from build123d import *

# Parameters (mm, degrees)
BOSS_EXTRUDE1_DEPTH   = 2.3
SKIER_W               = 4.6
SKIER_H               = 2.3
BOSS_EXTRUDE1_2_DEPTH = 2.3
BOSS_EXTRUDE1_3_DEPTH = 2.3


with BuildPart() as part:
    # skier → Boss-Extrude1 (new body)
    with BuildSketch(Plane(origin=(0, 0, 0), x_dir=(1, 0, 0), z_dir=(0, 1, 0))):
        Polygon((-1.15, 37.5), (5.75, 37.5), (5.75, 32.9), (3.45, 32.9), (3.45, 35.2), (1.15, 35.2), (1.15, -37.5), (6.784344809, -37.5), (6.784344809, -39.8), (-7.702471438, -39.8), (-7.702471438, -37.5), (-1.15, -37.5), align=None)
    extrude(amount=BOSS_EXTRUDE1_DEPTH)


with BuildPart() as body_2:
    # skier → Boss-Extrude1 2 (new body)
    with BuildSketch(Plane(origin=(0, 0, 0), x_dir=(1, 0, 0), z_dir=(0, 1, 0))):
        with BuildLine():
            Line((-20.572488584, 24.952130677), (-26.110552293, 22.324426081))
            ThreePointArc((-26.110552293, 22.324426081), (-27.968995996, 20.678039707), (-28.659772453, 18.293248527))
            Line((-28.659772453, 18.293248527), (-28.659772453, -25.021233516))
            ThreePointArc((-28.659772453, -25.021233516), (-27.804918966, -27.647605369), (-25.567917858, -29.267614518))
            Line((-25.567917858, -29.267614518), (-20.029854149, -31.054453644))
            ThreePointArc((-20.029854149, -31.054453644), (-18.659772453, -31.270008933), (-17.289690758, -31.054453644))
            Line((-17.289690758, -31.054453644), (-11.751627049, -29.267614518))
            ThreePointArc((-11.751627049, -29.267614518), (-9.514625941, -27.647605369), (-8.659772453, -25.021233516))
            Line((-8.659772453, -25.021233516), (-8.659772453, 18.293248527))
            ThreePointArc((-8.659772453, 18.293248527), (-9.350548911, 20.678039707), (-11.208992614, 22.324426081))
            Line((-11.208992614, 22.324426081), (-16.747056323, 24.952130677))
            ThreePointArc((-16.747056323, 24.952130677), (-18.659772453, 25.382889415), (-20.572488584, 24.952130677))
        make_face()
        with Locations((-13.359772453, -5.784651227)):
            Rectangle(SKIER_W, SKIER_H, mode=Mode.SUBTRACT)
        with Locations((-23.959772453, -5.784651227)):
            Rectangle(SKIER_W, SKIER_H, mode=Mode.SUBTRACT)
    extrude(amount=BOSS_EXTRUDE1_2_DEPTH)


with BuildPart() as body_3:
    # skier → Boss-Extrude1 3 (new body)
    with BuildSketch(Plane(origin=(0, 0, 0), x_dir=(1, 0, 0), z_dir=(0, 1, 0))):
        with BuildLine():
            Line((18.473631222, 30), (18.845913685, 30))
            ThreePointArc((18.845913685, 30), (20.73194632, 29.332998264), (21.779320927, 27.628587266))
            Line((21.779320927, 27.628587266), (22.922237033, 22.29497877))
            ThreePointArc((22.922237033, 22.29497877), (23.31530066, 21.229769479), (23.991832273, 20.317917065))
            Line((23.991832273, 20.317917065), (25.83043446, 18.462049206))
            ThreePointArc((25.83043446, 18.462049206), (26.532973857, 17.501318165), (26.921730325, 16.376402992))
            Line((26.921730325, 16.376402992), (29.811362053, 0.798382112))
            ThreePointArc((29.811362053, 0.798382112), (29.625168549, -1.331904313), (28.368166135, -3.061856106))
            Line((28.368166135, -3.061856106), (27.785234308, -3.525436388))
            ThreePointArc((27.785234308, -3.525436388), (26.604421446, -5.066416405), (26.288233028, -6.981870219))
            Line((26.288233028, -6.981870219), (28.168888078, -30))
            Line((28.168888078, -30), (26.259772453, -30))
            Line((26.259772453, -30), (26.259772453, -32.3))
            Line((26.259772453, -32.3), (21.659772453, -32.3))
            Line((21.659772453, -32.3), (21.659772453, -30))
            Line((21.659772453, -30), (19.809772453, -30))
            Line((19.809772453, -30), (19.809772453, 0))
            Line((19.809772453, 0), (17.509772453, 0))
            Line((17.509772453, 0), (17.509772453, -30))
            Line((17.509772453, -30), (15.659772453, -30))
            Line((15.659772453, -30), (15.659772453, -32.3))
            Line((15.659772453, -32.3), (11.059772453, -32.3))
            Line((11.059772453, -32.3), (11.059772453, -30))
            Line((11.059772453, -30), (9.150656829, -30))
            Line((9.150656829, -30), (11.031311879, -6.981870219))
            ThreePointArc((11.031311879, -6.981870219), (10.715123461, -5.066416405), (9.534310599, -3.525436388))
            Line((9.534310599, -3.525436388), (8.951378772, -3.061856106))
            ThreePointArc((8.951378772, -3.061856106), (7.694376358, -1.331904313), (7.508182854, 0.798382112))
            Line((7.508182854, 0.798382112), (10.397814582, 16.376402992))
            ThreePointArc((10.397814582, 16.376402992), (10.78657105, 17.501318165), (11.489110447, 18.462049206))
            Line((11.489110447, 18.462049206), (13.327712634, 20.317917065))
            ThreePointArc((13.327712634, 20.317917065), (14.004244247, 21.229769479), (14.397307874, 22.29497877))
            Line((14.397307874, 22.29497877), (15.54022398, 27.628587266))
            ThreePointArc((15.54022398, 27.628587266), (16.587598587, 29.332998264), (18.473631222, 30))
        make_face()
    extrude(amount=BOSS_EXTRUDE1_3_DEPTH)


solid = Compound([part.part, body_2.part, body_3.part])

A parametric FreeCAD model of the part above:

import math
import FreeCAD as App
import Part
import Sketcher


def add_polygon(sketch, points):
    """Adds a closed chain of lines whose ends are joined by coincident constraints."""
    first, n = sketch.GeometryCount, len(points)
    for a, b in zip(points, points[1:] + points[:1]):
        sketch.addGeometry(Part.LineSegment(App.Vector(*a, 0), App.Vector(*b, 0)), False)
    for i in range(n):
        sketch.addConstraint(Sketcher.Constraint("Coincident", first + i, 2, first + (i + 1) % n, 1))

doc = App.newDocument("Part")
body = doc.addObject("PartDesign::Body", "Body")

# Sketch on XZ plane
sketch1 = body.newObject("Sketcher::SketchObject", "Sketch")
sketch1.AttachmentSupport = (doc.getObject("XZ_Plane"), [""])
sketch1.MapMode = "FlatFace"
add_polygon(sketch1, [(5.8, -37.5), (-1.1, -37.5), (-1.1, 37.5), (-7.7, 37.5), (-7.7, 39.8), (6.8, 39.8), (6.8, 37.5), (1.1, 37.5), (1.1, -35.2), (3.5, -35.2), (3.5, -32.9), (5.8, -32.9)])  # lines 0-11
sketch1.addConstraint(Sketcher.Constraint("Horizontal", 0))
sketch1.addConstraint(Sketcher.Constraint("Vertical", 1))
sketch1.addConstraint(Sketcher.Constraint("Horizontal", 2))
sketch1.addConstraint(Sketcher.Constraint("Vertical", 3))
sketch1.addConstraint(Sketcher.Constraint("Horizontal", 4))
sketch1.addConstraint(Sketcher.Constraint("Vertical", 5))
sketch1.addConstraint(Sketcher.Constraint("Horizontal", 6))
sketch1.addConstraint(Sketcher.Constraint("Vertical", 7))
sketch1.addConstraint(Sketcher.Constraint("Horizontal", 8))
sketch1.addConstraint(Sketcher.Constraint("Vertical", 9))
sketch1.addConstraint(Sketcher.Constraint("Horizontal", 10))
sketch1.addConstraint(Sketcher.Constraint("Vertical", 11))
sketch1.addConstraint(Sketcher.Constraint("Symmetric", 0, 2, 6, 2, -1, 1))
sketch1.addConstraint(Sketcher.Constraint("Horizontal", 2, 2, 5, 2))
sketch1.addConstraint(Sketcher.Constraint("Equal", 8, 10))
sketch1.addConstraint(Sketcher.Constraint("Equal", 10, 3))
sketch1.addConstraint(Sketcher.Constraint("Equal", 5, 9))
sketch1.addConstraint(Sketcher.Constraint("DistanceY", 1, 1, 1, 2, 75.0))
sketch1.addConstraint(Sketcher.Constraint("DistanceX", 0, 2, 0, 1, 6.9))
sketch1.addConstraint(Sketcher.Constraint("DistanceX", 8, 1, 8, 2, 2.3))
sketch1.addConstraint(Sketcher.Constraint("DistanceY", 7, 2, 7, 1, 72.7))
sketch1.addConstraint(Sketcher.Constraint("DistanceX", 2, 2, 2, 1, 6.552471))
sketch1.addConstraint(Sketcher.Constraint("DistanceX", 4, 1, 4, 2, 14.486816))
pad1 = body.newObject("PartDesign::Pad", "Pad")
pad1.Profile = sketch1
pad1.Length = 2.3
pad1.Reversed = True
body2 = doc.addObject("PartDesign::Body", "Body001")

# Sketch on XZ plane
sketch2 = body2.newObject("Sketcher::SketchObject", "Sketch001")
sketch2.AttachmentSupport = (doc.getObject("XZ_Plane001"), [""])
sketch2.MapMode = "FlatFace"
sketch2.addGeometry(Part.LineSegment(App.Vector(-20.6, -25, 0), App.Vector(-26.1, -22.3, 0)), False)  # 0
sketch2.addGeometry(Part.ArcOfCircle(Part.Circle(App.Vector(-24.2, -18.3, 0), App.Vector(0, 0, 1), 4.5), math.radians(180), math.radians(245)), False)  # 1
sketch2.addGeometry(Part.LineSegment(App.Vector(-28.7, -18.3, 0), App.Vector(-28.7, 25, 0)), False)  # 2
sketch2.addGeometry(Part.ArcOfCircle(Part.Circle(App.Vector(-24.2, 25, 0), App.Vector(0, 0, 1), 4.5), math.radians(108), math.radians(180)), False)  # 3
sketch2.addGeometry(Part.LineSegment(App.Vector(-25.6, 29.3, 0), App.Vector(-20, 31.1, 0)), False)  # 4
sketch2.addGeometry(Part.ArcOfCircle(Part.Circle(App.Vector(-18.7, 26.8, 0), App.Vector(0, 0, 1), 4.5), math.radians(72), math.radians(108)), False)  # 5
sketch2.addGeometry(Part.LineSegment(App.Vector(-17.3, 31.1, 0), App.Vector(-11.8, 29.3, 0)), False)  # 6
sketch2.addGeometry(Part.ArcOfCircle(Part.Circle(App.Vector(-13.1, 25, 0), App.Vector(0, 0, 1), 4.5), math.radians(0), math.radians(72)), False)  # 7
sketch2.addGeometry(Part.LineSegment(App.Vector(-8.7, 25, 0), App.Vector(-8.7, -18.3, 0)), False)  # 8
sketch2.addGeometry(Part.ArcOfCircle(Part.Circle(App.Vector(-13.1, -18.3, 0), App.Vector(0, 0, 1), 4.5), math.radians(-65), math.radians(0)), False)  # 9
sketch2.addGeometry(Part.LineSegment(App.Vector(-11.2, -22.3, 0), App.Vector(-16.7, -25, 0)), False)  # 10
sketch2.addGeometry(Part.ArcOfCircle(Part.Circle(App.Vector(-18.7, -20.9, 0), App.Vector(0, 0, 1), 4.5), math.radians(-115), math.radians(-65)), False)  # 11
add_polygon(sketch2, [(-21.7, 6.9), (-26.3, 6.9), (-26.3, 4.6), (-21.7, 4.6)])  # lines 12-15
add_polygon(sketch2, [(-11.1, 6.9), (-15.7, 6.9), (-15.7, 4.6), (-11.1, 4.6)])  # lines 16-19
sketch2.addConstraint(Sketcher.Constraint("Tangent", 0, 2, 1, 2))
sketch2.addConstraint(Sketcher.Constraint("Tangent", 1, 1, 2, 1))
sketch2.addConstraint(Sketcher.Constraint("Tangent", 2, 2, 3, 2))
sketch2.addConstraint(Sketcher.Constraint("Tangent", 3, 1, 4, 1))
sketch2.addConstraint(Sketcher.Constraint("Tangent", 4, 2, 5, 2))
sketch2.addConstraint(Sketcher.Constraint("Tangent", 5, 1, 6, 1))
sketch2.addConstraint(Sketcher.Constraint("Tangent", 6, 2, 7, 2))
sketch2.addConstraint(Sketcher.Constraint("Tangent", 7, 1, 8, 1))
sketch2.addConstraint(Sketcher.Constraint("Tangent", 8, 2, 9, 2))
sketch2.addConstraint(Sketcher.Constraint("Tangent", 9, 1, 10, 1))
sketch2.addConstraint(Sketcher.Constraint("Tangent", 10, 2, 11, 2))
sketch2.addConstraint(Sketcher.Constraint("Tangent", 11, 1, 0, 1))
sketch2.addConstraint(Sketcher.Constraint("Vertical", 2))
sketch2.addConstraint(Sketcher.Constraint("Vertical", 8))
sketch2.addConstraint(Sketcher.Constraint("Horizontal", 12))
sketch2.addConstraint(Sketcher.Constraint("Vertical", 13))
sketch2.addConstraint(Sketcher.Constraint("Horizontal", 14))
sketch2.addConstraint(Sketcher.Constraint("Vertical", 15))
sketch2.addConstraint(Sketcher.Constraint("Horizontal", 16))
sketch2.addConstraint(Sketcher.Constraint("Vertical", 17))
sketch2.addConstraint(Sketcher.Constraint("Horizontal", 18))
sketch2.addConstraint(Sketcher.Constraint("Vertical", 19))
sketch2.addConstraint(Sketcher.Constraint("Equal", 1, 3))
sketch2.addConstraint(Sketcher.Constraint("Equal", 3, 5))
sketch2.addConstraint(Sketcher.Constraint("Equal", 5, 7))
sketch2.addConstraint(Sketcher.Constraint("Equal", 7, 9))
sketch2.addConstraint(Sketcher.Constraint("Equal", 9, 11))
sketch2.addConstraint(Sketcher.Constraint("Horizontal", 3, 3, 7, 3))
sketch2.addConstraint(Sketcher.Constraint("Horizontal", 1, 3, 9, 3))
sketch2.addConstraint(Sketcher.Constraint("Horizontal", 4, 2, 5, 1))
sketch2.addConstraint(Sketcher.Constraint("Horizontal", 0, 2, 9, 1))
sketch2.addConstraint(Sketcher.Constraint("Horizontal", 15, 2, 16, 2))
sketch2.addConstraint(Sketcher.Constraint("Horizontal", 14, 2, 17, 2))
sketch2.addConstraint(Sketcher.Constraint("Equal", 14, 16))
sketch2.addConstraint(Sketcher.Constraint("DistanceX", 12, 2, 12, 1, 4.6))
sketch2.addConstraint(Sketcher.Constraint("DistanceY", 13, 2, 13, 1, 2.3))
sketch2.addConstraint(Sketcher.Constraint("DistanceX", 1, 1, 11, 3, 10.0))
sketch2.addConstraint(Sketcher.Constraint("DistanceX", 2, 2, 14, 2, 7.0))
sketch2.addConstraint(Sketcher.Constraint("DistanceX", 15, 2, 16, 2, 6.0))
sketch2.addConstraint(Sketcher.Constraint("Radius", 1, 4.461936))
sketch2.addConstraint(Sketcher.Constraint("DistanceY", 1, 3, 13, 2, 22.9279))
sketch2.addConstraint(Sketcher.Constraint("DistanceY", 2, 1, 2, 2, 43.314482))
sketch2.addConstraint(Sketcher.Constraint("DistanceY", 1, 3, -1, 1, 18.293249))
sketch2.addConstraint(Sketcher.Constraint("DistanceX", 7, 3, -1, 1, 13.121709))
sketch2.addConstraint(Sketcher.Constraint("DistanceX", 5, 1, -1, 1, 17.289691))
sketch2.addConstraint(Sketcher.Constraint("DistanceY", 10, 2, -1, 1, 24.952131))
pad2 = body2.newObject("PartDesign::Pad", "Pad001")
pad2.Profile = sketch2
pad2.Length = 2.3
pad2.Reversed = True
body3 = doc.addObject("PartDesign::Body", "Body002")

# Sketch on XZ plane
sketch3 = body3.newObject("Sketcher::SketchObject", "Sketch002")
sketch3.AttachmentSupport = (doc.getObject("XZ_Plane002"), [""])
sketch3.MapMode = "FlatFace"
sketch3.addGeometry(Part.LineSegment(App.Vector(18.85, -30, 0), App.Vector(18.47, -30, 0)), False)
sketch3.addGeometry(Part.ArcOfCircle(Part.Circle(App.Vector(18.47, -27, 0), App.Vector(0, 0, 1), 3), math.radians(-168), math.radians(-90)), False)
sketch3.addGeometry(Part.LineSegment(App.Vector(15.54, -27.63, 0), App.Vector(14.4, -22.29, 0)), False)
sketch3.addGeometry(Part.ArcOfCircle(Part.Circle(App.Vector(10.49, -23.13, 0), App.Vector(0, 0, 1), 4), math.radians(12), math.radians(45)), False)
sketch3.addGeometry(Part.LineSegment(App.Vector(13.33, -20.32, 0), App.Vector(11.49, -18.46, 0)), False)
sketch3.addGeometry(Part.ArcOfCircle(Part.Circle(App.Vector(14.33, -15.65, 0), App.Vector(0, 0, 1), 4), math.radians(-169), math.radians(-135)), False)
sketch3.addGeometry(Part.LineSegment(App.Vector(10.4, -16.38, 0), App.Vector(7.51, -0.8, 0)), False)
sketch3.addGeometry(Part.ArcOfCircle(Part.Circle(App.Vector(11.44, -0.07, 0), App.Vector(0, 0, 1), 4), math.radians(128), math.radians(191)), False)
sketch3.addGeometry(Part.LineSegment(App.Vector(8.95, 3.06, 0), App.Vector(9.53, 3.53, 0)), False)
sketch3.addGeometry(Part.ArcOfCircle(Part.Circle(App.Vector(7.04, 6.66, 0), App.Vector(0, 0, 1), 4), math.radians(-52), math.radians(5)), False)
sketch3.addGeometry(Part.LineSegment(App.Vector(11.03, 6.98, 0), App.Vector(9.15, 30, 0)), False)
sketch3.addGeometry(Part.LineSegment(App.Vector(9.15, 30, 0), App.Vector(11.06, 30, 0)), False)
sketch3.addGeometry(Part.LineSegment(App.Vector(11.06, 30, 0), App.Vector(11.06, 32.3, 0)), False)
sketch3.addGeometry(Part.LineSegment(App.Vector(11.06, 32.3, 0), App.Vector(15.66, 32.3, 0)), False)
sketch3.addGeometry(Part.LineSegment(App.Vector(15.66, 32.3, 0), App.Vector(15.66, 30, 0)), False)
sketch3.addGeometry(Part.LineSegment(App.Vector(15.66, 30, 0), App.Vector(17.51, 30, 0)), False)
sketch3.addGeometry(Part.LineSegment(App.Vector(17.51, 30, 0), App.Vector(17.51, 0, 0)), False)
sketch3.addGeometry(Part.LineSegment(App.Vector(17.51, 0, 0), App.Vector(19.81, 0, 0)), False)
sketch3.addGeometry(Part.LineSegment(App.Vector(19.81, 0, 0), App.Vector(19.81, 30, 0)), False)
sketch3.addGeometry(Part.LineSegment(App.Vector(19.81, 30, 0), App.Vector(21.66, 30, 0)), False)
sketch3.addGeometry(Part.LineSegment(App.Vector(21.66, 30, 0), App.Vector(21.66, 32.3, 0)), False)
sketch3.addGeometry(Part.LineSegment(App.Vector(21.66, 32.3, 0), App.Vector(26.26, 32.3, 0)), False)
sketch3.addGeometry(Part.LineSegment(App.Vector(26.26, 32.3, 0), App.Vector(26.26, 30, 0)), False)
sketch3.addGeometry(Part.LineSegment(App.Vector(26.26, 30, 0), App.Vector(28.17, 30, 0)), False)
sketch3.addGeometry(Part.LineSegment(App.Vector(28.17, 30, 0), App.Vector(26.29, 6.98, 0)), False)
sketch3.addGeometry(Part.ArcOfCircle(Part.Circle(App.Vector(30.27, 6.66, 0), App.Vector(0, 0, 1), 4), math.radians(175), math.radians(232)), False)
sketch3.addGeometry(Part.LineSegment(App.Vector(27.79, 3.53, 0), App.Vector(28.37, 3.06, 0)), False)
sketch3.addGeometry(Part.ArcOfCircle(Part.Circle(App.Vector(25.88, -0.07, 0), App.Vector(0, 0, 1), 4), math.radians(-11), math.radians(52)), False)
sketch3.addGeometry(Part.LineSegment(App.Vector(29.81, -0.8, 0), App.Vector(26.92, -16.38, 0)), False)
sketch3.addGeometry(Part.ArcOfCircle(Part.Circle(App.Vector(22.99, -15.65, 0), App.Vector(0, 0, 1), 4), math.radians(-45), math.radians(-11)), False)
sketch3.addGeometry(Part.LineSegment(App.Vector(25.83, -18.46, 0), App.Vector(23.99, -20.32, 0)), False)
sketch3.addGeometry(Part.ArcOfCircle(Part.Circle(App.Vector(26.83, -23.13, 0), App.Vector(0, 0, 1), 4), math.radians(135), math.radians(168)), False)
sketch3.addGeometry(Part.LineSegment(App.Vector(22.92, -22.29, 0), App.Vector(21.78, -27.63, 0)), False)
sketch3.addGeometry(Part.ArcOfCircle(Part.Circle(App.Vector(18.85, -27, 0), App.Vector(0, 0, 1), 3), math.radians(-90), math.radians(-12)), False)
sketch3.addConstraint(Sketcher.Constraint("Tangent", 0, 2, 1, 2))
sketch3.addConstraint(Sketcher.Constraint("Tangent", 1, 1, 2, 1))
sketch3.addConstraint(Sketcher.Constraint("Tangent", 2, 2, 3, 1))
sketch3.addConstraint(Sketcher.Constraint("Tangent", 3, 2, 4, 1))
sketch3.addConstraint(Sketcher.Constraint("Tangent", 4, 2, 5, 2))
sketch3.addConstraint(Sketcher.Constraint("Tangent", 5, 1, 6, 1))
sketch3.addConstraint(Sketcher.Constraint("Tangent", 6, 2, 7, 2))
sketch3.addConstraint(Sketcher.Constraint("Tangent", 7, 1, 8, 1))
sketch3.addConstraint(Sketcher.Constraint("Tangent", 8, 2, 9, 1))
sketch3.addConstraint(Sketcher.Constraint("Tangent", 9, 2, 10, 1))
sketch3.addConstraint(Sketcher.Constraint("Coincident", 10, 2, 11, 1))
sketch3.addConstraint(Sketcher.Constraint("Coincident", 11, 2, 12, 1))
sketch3.addConstraint(Sketcher.Constraint("Coincident", 12, 2, 13, 1))
sketch3.addConstraint(Sketcher.Constraint("Coincident", 13, 2, 14, 1))
sketch3.addConstraint(Sketcher.Constraint("Coincident", 14, 2, 15, 1))
sketch3.addConstraint(Sketcher.Constraint("Coincident", 15, 2, 16, 1))
sketch3.addConstraint(Sketcher.Constraint("Coincident", 16, 2, 17, 1))
sketch3.addConstraint(Sketcher.Constraint("Coincident", 17, 2, 18, 1))
sketch3.addConstraint(Sketcher.Constraint("Coincident", 18, 2, 19, 1))
sketch3.addConstraint(Sketcher.Constraint("Coincident", 19, 2, 20, 1))
sketch3.addConstraint(Sketcher.Constraint("Coincident", 20, 2, 21, 1))
sketch3.addConstraint(Sketcher.Constraint("Coincident", 21, 2, 22, 1))
sketch3.addConstraint(Sketcher.Constraint("Coincident", 22, 2, 23, 1))
sketch3.addConstraint(Sketcher.Constraint("Coincident", 23, 2, 24, 1))
sketch3.addConstraint(Sketcher.Constraint("Tangent", 24, 2, 25, 1))
sketch3.addConstraint(Sketcher.Constraint("Tangent", 25, 2, 26, 1))
sketch3.addConstraint(Sketcher.Constraint("Tangent", 26, 2, 27, 2))
sketch3.addConstraint(Sketcher.Constraint("Tangent", 27, 1, 28, 1))
sketch3.addConstraint(Sketcher.Constraint("Tangent", 28, 2, 29, 2))
sketch3.addConstraint(Sketcher.Constraint("Tangent", 29, 1, 30, 1))
sketch3.addConstraint(Sketcher.Constraint("Tangent", 30, 2, 31, 1))
sketch3.addConstraint(Sketcher.Constraint("Tangent", 31, 2, 32, 1))
sketch3.addConstraint(Sketcher.Constraint("Tangent", 32, 2, 33, 2))
sketch3.addConstraint(Sketcher.Constraint("Tangent", 33, 1, 0, 1))
sketch3.addConstraint(Sketcher.Constraint("Horizontal", 0))
sketch3.addConstraint(Sketcher.Constraint("Horizontal", 11))
sketch3.addConstraint(Sketcher.Constraint("Vertical", 12))
sketch3.addConstraint(Sketcher.Constraint("Horizontal", 13))
sketch3.addConstraint(Sketcher.Constraint("Vertical", 14))
sketch3.addConstraint(Sketcher.Constraint("Horizontal", 15))
sketch3.addConstraint(Sketcher.Constraint("Vertical", 16))
sketch3.addConstraint(Sketcher.Constraint("Horizontal", 17))
sketch3.addConstraint(Sketcher.Constraint("Vertical", 18))
sketch3.addConstraint(Sketcher.Constraint("Horizontal", 19))
sketch3.addConstraint(Sketcher.Constraint("Vertical", 20))
sketch3.addConstraint(Sketcher.Constraint("Horizontal", 21))
sketch3.addConstraint(Sketcher.Constraint("Vertical", 22))
sketch3.addConstraint(Sketcher.Constraint("Horizontal", 23))
sketch3.addConstraint(Sketcher.Constraint("Equal", 3, 5))
sketch3.addConstraint(Sketcher.Constraint("Equal", 5, 7))
sketch3.addConstraint(Sketcher.Constraint("Equal", 7, 9))
sketch3.addConstraint(Sketcher.Constraint("Equal", 9, 25))
sketch3.addConstraint(Sketcher.Constraint("Equal", 25, 27))
sketch3.addConstraint(Sketcher.Constraint("Equal", 27, 29))
sketch3.addConstraint(Sketcher.Constraint("Equal", 29, 31))
sketch3.addConstraint(Sketcher.Constraint("Equal", 1, 33))
sketch3.addConstraint(Sketcher.Constraint("PointOnObject", 16, 2, -1))
sketch3.addConstraint(Sketcher.Constraint("Horizontal", 9, 3, 25, 3))
sketch3.addConstraint(Sketcher.Constraint("Horizontal", 7, 3, 27, 3))
sketch3.addConstraint(Sketcher.Constraint("Horizontal", 5, 3, 29, 3))
sketch3.addConstraint(Sketcher.Constraint("Horizontal", 3, 3, 31, 3))
sketch3.addConstraint(Sketcher.Constraint("Horizontal", 11, 2, 14, 2))
sketch3.addConstraint(Sketcher.Constraint("Horizontal", 15, 2, 18, 2))
sketch3.addConstraint(Sketcher.Constraint("Horizontal", 13, 2, 20, 2))
sketch3.addConstraint(Sketcher.Constraint("Horizontal", 19, 2, 22, 2))
sketch3.addConstraint(Sketcher.Constraint("Horizontal", 9, 2, 24, 2))
sketch3.addConstraint(Sketcher.Constraint("Horizontal", 8, 2, 25, 2))
sketch3.addConstraint(Sketcher.Constraint("Horizontal", 6, 2, 27, 1))
sketch3.addConstraint(Sketcher.Constraint("Horizontal", 4, 2, 29, 1))
sketch3.addConstraint(Sketcher.Constraint("Horizontal", 2, 2, 31, 2))
sketch3.addConstraint(Sketcher.Constraint("Equal", 15, 19))
sketch3.addConstraint(Sketcher.Constraint("Equal", 13, 21))
sketch3.addConstraint(Sketcher.Constraint("Equal", 11, 23))
sketch3.addConstraint(Sketcher.Constraint("Equal", 17, 12))
sketch3.addConstraint(Sketcher.Constraint("Radius", 1, 3.0))
sketch3.addConstraint(Sketcher.Constraint("Radius", 3, 4.0))
sketch3.addConstraint(Sketcher.Constraint("DistanceY", 16, 2, 16, 1, 30.0))
sketch3.addConstraint(Sketcher.Constraint("DistanceX", 13, 1, 13, 2, 4.6))
sketch3.addConstraint(Sketcher.Constraint("DistanceX", 17, 1, 17, 2, 2.3))
sketch3.addConstraint(Sketcher.Constraint("DistanceY", 1, 3, -1, 1, 27.0))
sketch3.addConstraint(Sketcher.Constraint("DistanceX", 14, 2, 19, 2, 6.0))
sketch3.addConstraint(Sketcher.Constraint("DistanceX", 8, 2, 9, 2, 1.497001))
sketch3.addConstraint(Sketcher.Constraint("DistanceX", -1, 1, 3, 3, 10.486098))
sketch3.addConstraint(Sketcher.Constraint("DistanceX", 9, 3, 3, 3, 3.441502))
sketch3.addConstraint(Sketcher.Constraint("DistanceX", 5, 3, 1, 1, 1.209499))
sketch3.addConstraint(Sketcher.Constraint("DistanceX", 5, 1, 3, 2, 2.929898))
sketch3.addConstraint(Sketcher.Constraint("DistanceX", 1, 3, 28, 2, 8.448099))
sketch3.addConstraint(Sketcher.Constraint("Distance", 2, 5.454689))
sketch3.addConstraint(Sketcher.Constraint("Distance", 6, 15.843759))
sketch3.addConstraint(Sketcher.Constraint("Distance", 10, 23.09483))
sketch3.addConstraint(Sketcher.Constraint("DistanceX", 0, 2, 0, 1, 0.372282))
sketch3.addConstraint(Sketcher.Constraint("DistanceX", 11, 1, 11, 2, 1.909116))
pad3 = body3.newObject("PartDesign::Pad", "Pad002")
pad3.Profile = sketch3
pad3.Length = 2.3
pad3.Reversed = True

doc.recompute()
